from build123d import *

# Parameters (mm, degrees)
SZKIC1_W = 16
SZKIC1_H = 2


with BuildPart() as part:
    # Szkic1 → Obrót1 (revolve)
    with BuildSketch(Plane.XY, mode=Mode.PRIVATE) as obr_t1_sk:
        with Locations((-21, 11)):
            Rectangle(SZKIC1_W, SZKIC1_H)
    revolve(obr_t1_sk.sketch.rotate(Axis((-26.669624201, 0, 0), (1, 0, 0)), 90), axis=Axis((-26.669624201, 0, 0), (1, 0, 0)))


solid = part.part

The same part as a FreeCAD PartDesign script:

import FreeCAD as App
import Part
import Sketcher

V = App.Vector

doc = App.newDocument("Part")
params = doc.addObject("Spreadsheet::Sheet", "Params")
for row, (alias, value) in enumerate([
    ("sketch1_width", "16 mm"),
    ("sketch1_height", "2 mm"),
    ("revolution_angle", "360 deg"),
], start=1):
    params.set(f"A{row}", alias)
    params.set(f"B{row}", "=" + value)
    params.setAlias(f"B{row}", alias)

body = doc.addObject("PartDesign::Body", "Body")

sketch1 = body.newObject("Sketcher::SketchObject", "Sketch")
sketch1.AttachmentSupport = (doc.getObject("XY_Plane"), [""])
sketch1.MapMode = "FlatFace"
sketch1.addGeometry(Part.LineSegment(V(-29, 12, 0), V(-29, 10, 0)), False)
sketch1.addGeometry(Part.LineSegment(V(-29, 10, 0), V(-13, 10, 0)), False)
sketch1.addGeometry(Part.LineSegment(V(-13, 10, 0), V(-13, 12, 0)), False)
sketch1.addGeometry(Part.LineSegment(V(-13, 12, 0), V(-29, 12, 0)), False)
sketch1.addConstraint(Sketcher.Constraint("Coincident", 0, 2, 1, 1))
sketch1.addConstraint(Sketcher.Constraint("Coincident", 1, 2, 2, 1))
sketch1.addConstraint(Sketcher.Constraint("Coincident", 2, 2, 3, 1))
sketch1.addConstraint(Sketcher.Constraint("Coincident", 3, 2, 0, 1))
sketch1.addConstraint(Sketcher.Constraint("Vertical", 0))
sketch1.addConstraint(Sketcher.Constraint("Horizontal", 1))
sketch1.addConstraint(Sketcher.Constraint("Vertical", 2))
sketch1.addConstraint(Sketcher.Constraint("Horizontal", 3))
sketch1.addConstraint(Sketcher.Constraint("DistanceX", 1, 1, 1, 2, 16.0))
sketch1.addConstraint(Sketcher.Constraint("DistanceY", 0, 2, 0, 1, 2.0))
sketch1.addConstraint(Sketcher.Constraint("DistanceX", 0, 2, -1, 1, 29.0))
sketch1.addConstraint(Sketcher.Constraint("DistanceY", -1, 1, 0, 2, 10.0))
sketch1.setExpression("Constraints[8]", "Params.sketch1_width")
sketch1.setExpression("Constraints[9]", "Params.sketch1_height")
revolution = body.newObject("PartDesign::Revolution", "Revolution")
revolution.Profile = sketch1
revolution.ReferenceAxis = (sketch1, ["H_Axis"])
revolution.setExpression("Angle", "Params.revolution_angle")

doc.recompute()
